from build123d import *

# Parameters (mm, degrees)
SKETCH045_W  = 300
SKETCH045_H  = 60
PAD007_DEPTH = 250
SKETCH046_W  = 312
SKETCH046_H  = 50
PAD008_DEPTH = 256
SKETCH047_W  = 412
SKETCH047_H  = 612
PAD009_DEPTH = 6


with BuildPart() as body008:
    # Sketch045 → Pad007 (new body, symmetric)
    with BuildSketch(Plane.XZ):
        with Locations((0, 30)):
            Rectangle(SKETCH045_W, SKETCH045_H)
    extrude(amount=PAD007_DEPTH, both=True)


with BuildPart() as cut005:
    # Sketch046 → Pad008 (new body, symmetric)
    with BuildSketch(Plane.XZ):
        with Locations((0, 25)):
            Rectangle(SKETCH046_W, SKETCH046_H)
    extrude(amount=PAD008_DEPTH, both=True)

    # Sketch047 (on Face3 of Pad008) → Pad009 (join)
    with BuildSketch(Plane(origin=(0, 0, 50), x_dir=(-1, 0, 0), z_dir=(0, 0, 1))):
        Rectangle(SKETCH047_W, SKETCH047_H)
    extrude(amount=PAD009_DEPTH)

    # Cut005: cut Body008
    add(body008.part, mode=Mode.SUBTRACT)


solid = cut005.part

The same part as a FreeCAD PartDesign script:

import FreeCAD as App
import Part
import Sketcher
from FreeCAD import Vector
Q = App.Units.Quantity


def add_polygon(sketch, points):
    """Adds a closed chain of lines whose ends are joined by coincident constraints."""
    first, n = sketch.GeometryCount, len(points)
    for a, b in zip(points, points[1:] + points[:1]):
        sketch.addGeometry(Part.LineSegment(App.Vector(*a, 0), App.Vector(*b, 0)), False)
    for i in range(n):
        sketch.addConstraint(Sketcher.Constraint("Coincident", first + i, 2, first + (i + 1) % n, 1))

doc = App.newDocument("Part")
body = doc.addObject("PartDesign::Body", "Body")

# Sketch on XZ plane
sketch1 = body.newObject("Sketcher::SketchObject", "Sketch")
sketch1.AttachmentSupport = (doc.getObject("XZ_Plane"), [""])
sketch1.MapMode = "FlatFace"
add_polygon(sketch1, [(-150, 60), (-150, 0), (150, 0), (150, 60)])  # lines 0-3
sketch1.addConstraint(Sketcher.Constraint("Vertical", 0))
sketch1.addConstraint(Sketcher.Constraint("Horizontal", 1))
sketch1.addConstraint(Sketcher.Constraint("Vertical", 2))
sketch1.addConstraint(Sketcher.Constraint("Horizontal", 3))
sketch1.addConstraint(Sketcher.Constraint("Symmetric", 0, 2, 1, 2, -1, 1))
sketch1.addConstraint(Sketcher.Constraint("DistanceX", 1, 1, 1, 2, Q("300 mm")))
sketch1.addConstraint(Sketcher.Constraint("DistanceY", 0, 2, 0, 1, Q("60 mm")))
pad1 = body.newObject("PartDesign::Pad", "Pad")
pad1.Profile = sketch1
pad1.Length = 500
pad1.Midplane = True
body2 = doc.addObject("PartDesign::Body", "Body001")

# Sketch on XZ plane
sketch2 = body2.newObject("Sketcher::SketchObject", "Sketch001")
sketch2.AttachmentSupport = (doc.getObject("XZ_Plane001"), [""])
sketch2.MapMode = "FlatFace"
add_polygon(sketch2, [(-156, 50), (-156, 0), (156, 0), (156, 50)])  # lines 0-3
sketch2.addConstraint(Sketcher.Constraint("Vertical", 0))
sketch2.addConstraint(Sketcher.Constraint("Horizontal", 1))
sketch2.addConstraint(Sketcher.Constraint("Vertical", 2))
sketch2.addConstraint(Sketcher.Constraint("Horizontal", 3))
sketch2.addConstraint(Sketcher.Constraint("Symmetric", 0, 2, 1, 2, -1, 1))
sketch2.addConstraint(Sketcher.Constraint("DistanceX", 1, 1, 1, 2, Q("312 mm")))
sketch2.addConstraint(Sketcher.Constraint("DistanceY", 0, 2, 0, 1, Q("50 mm")))
pad2 = body2.newObject("PartDesign::Pad", "Pad001")
pad2.Profile = sketch2
pad2.Length = 512
pad2.Midplane = True

# Sketch on XY plane
sketch3 = body2.newObject("Sketcher::SketchObject", "Sketch002")
sketch3.AttachmentSupport = (doc.getObject("XY_Plane001"), [""])
sketch3.MapMode = "FlatFace"
sketch3.AttachmentOffset = App.Placement(Vector(0, 0, 50), App.Rotation())
add_polygon(sketch3, [(206, -306), (206, 306), (-206, 306), (-206, -306)])  # lines 0-3
sketch3.addConstraint(Sketcher.Constraint("Vertical", 0))
sketch3.addConstraint(Sketcher.Constraint("Horizontal", 1))
sketch3.addConstraint(Sketcher.Constraint("Vertical", 2))
sketch3.addConstraint(Sketcher.Constraint("Horizontal", 3))
sketch3.addConstraint(Sketcher.Constraint("Symmetric", 0, 2, 2, 2, -1, 1))
sketch3.addConstraint(Sketcher.Constraint("DistanceX", 1, 2, 1, 1, Q("412 mm")))
sketch3.addConstraint(Sketcher.Constraint("DistanceY", 0, 1, 0, 2, Q("612 mm")))
pad3 = body2.newObject("PartDesign::Pad", "Pad002")
pad3.Profile = sketch3
pad3.Length = 6
doc.recompute()

boolean = body2.newObject("PartDesign::Boolean", "Boolean")
boolean.Type = "Cut"
boolean.addObjects([body])

doc.recompute()
